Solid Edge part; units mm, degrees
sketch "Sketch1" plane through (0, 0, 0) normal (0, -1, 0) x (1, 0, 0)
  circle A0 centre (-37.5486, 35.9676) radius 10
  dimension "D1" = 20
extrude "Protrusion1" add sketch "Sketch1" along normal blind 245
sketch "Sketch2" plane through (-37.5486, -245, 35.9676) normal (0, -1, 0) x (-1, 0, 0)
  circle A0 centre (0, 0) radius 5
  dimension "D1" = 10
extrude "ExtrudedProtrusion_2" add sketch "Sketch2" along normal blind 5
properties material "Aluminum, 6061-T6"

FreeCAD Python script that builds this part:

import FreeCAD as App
import Part
import Sketcher

doc = App.newDocument("Part")
body = doc.addObject("PartDesign::Body", "Body")

sketch1 = body.newObject("Sketcher::SketchObject", "Sketch")
sketch1.AttachmentSupport = (doc.getObject("XZ_Plane"), [""])
sketch1.MapMode = "FlatFace"
sketch1.addGeometry(Part.Circle(App.Vector(-38, 36, 0), App.Vector(0, 0, 1), 10), False)
sketch1.addConstraint([
    Sketcher.Constraint("Diameter", 0, 20.0),
    Sketcher.Constraint("DistanceX", 0, 3, -1, 1, 37.5486),
    Sketcher.Constraint("DistanceY", -1, 1, 0, 3, 35.9676),
])
pad1 = body.newObject("PartDesign::Pad", "Pad")
pad1.Profile = sketch1
pad1.Length = 245

sketch2 = body.newObject("Sketcher::SketchObject", "Sketch001")
sketch2.AttachmentSupport = (doc.getObject("XZ_Plane"), [""])
sketch2.MapMode = "FlatFace"
sketch2.AttachmentOffset = App.Placement(App.Vector(0, 0, 245), App.Rotation())
sketch2.addGeometry(Part.Circle(App.Vector(-38, 36, 0), App.Vector(0, 0, 1), 5), False)
sketch2.addConstraint([
    Sketcher.Constraint("Diameter", 0, 10.0),
    Sketcher.Constraint("DistanceX", 0, 3, -1, 1, 37.5486),
    Sketcher.Constraint("DistanceY", -1, 1, 0, 3, 35.9676),
])
pad2 = body.newObject("PartDesign::Pad", "Pad001")
pad2.Profile = sketch2
pad2.Length = 5

doc.recompute()
